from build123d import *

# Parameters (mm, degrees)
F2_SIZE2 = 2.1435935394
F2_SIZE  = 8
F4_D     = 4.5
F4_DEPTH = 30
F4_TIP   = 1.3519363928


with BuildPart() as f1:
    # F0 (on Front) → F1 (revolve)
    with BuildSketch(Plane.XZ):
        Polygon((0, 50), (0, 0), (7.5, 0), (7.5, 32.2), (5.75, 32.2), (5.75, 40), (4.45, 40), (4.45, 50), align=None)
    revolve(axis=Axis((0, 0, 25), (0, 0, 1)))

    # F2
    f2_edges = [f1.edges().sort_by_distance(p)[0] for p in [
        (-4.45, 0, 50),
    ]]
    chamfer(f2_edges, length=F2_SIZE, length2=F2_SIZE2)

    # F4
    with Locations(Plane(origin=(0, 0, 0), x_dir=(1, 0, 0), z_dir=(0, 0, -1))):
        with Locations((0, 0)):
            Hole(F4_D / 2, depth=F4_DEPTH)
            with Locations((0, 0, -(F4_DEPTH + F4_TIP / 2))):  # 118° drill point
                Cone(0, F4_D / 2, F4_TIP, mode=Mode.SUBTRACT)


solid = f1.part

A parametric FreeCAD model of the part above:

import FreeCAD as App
import Part
import Sketcher


def edges_at(feature, points):
    """Names of the edges that pass closest to the given points."""
    edges = feature.Shape.Edges
    near = lambda p: min(range(len(edges)), key=lambda i: edges[i].distToShape(Part.Vertex(*p))[0])
    return sorted({f"Edge{near(p) + 1}" for p in points})

doc = App.newDocument("Part")
body = doc.addObject("PartDesign::Body", "Body")

# Sketch on XZ plane
sketch1 = body.newObject("Sketcher::SketchObject", "Sketch")
sketch1.AttachmentSupport = (doc.getObject("XZ_Plane"), [""])
sketch1.MapMode = "FlatFace"
sketch1.addGeometry(Part.LineSegment(App.Vector(0, 50, 0), App.Vector(0, 0, 0)), False)
sketch1.addGeometry(Part.LineSegment(App.Vector(0, 0, 0), App.Vector(7.5, 0, 0)), False)
sketch1.addGeometry(Part.LineSegment(App.Vector(7.5, 0, 0), App.Vector(7.5, 32.2, 0)), False)
sketch1.addGeometry(Part.LineSegment(App.Vector(7.5, 32.2, 0), App.Vector(5.75, 32.2, 0)), False)
sketch1.addGeometry(Part.LineSegment(App.Vector(5.75, 32.2, 0), App.Vector(5.75, 40, 0)), False)
sketch1.addGeometry(Part.LineSegment(App.Vector(5.75, 40, 0), App.Vector(4.45, 40, 0)), False)
sketch1.addGeometry(Part.LineSegment(App.Vector(4.45, 40, 0), App.Vector(4.45, 50, 0)), False)
sketch1.addGeometry(Part.LineSegment(App.Vector(4.45, 50, 0), App.Vector(0, 50, 0)), False)
sketch1.addConstraint(Sketcher.Constraint("Coincident", 0, 2, 1, 1))
sketch1.addConstraint(Sketcher.Constraint("Coincident", 1, 2, 2, 1))
sketch1.addConstraint(Sketcher.Constraint("Coincident", 2, 2, 3, 1))
sketch1.addConstraint(Sketcher.Constraint("Coincident", 3, 2, 4, 1))
sketch1.addConstraint(Sketcher.Constraint("Coincident", 4, 2, 5, 1))
sketch1.addConstraint(Sketcher.Constraint("Coincident", 5, 2, 6, 1))
sketch1.addConstraint(Sketcher.Constraint("Coincident", 6, 2, 7, 1))
sketch1.addConstraint(Sketcher.Constraint("Coincident", 7, 2, 0, 1))
sketch1.addConstraint(Sketcher.Constraint("Vertical", 0))
sketch1.addConstraint(Sketcher.Constraint("Horizontal", 1))
sketch1.addConstraint(Sketcher.Constraint("Vertical", 2))
sketch1.addConstraint(Sketcher.Constraint("Horizontal", 3))
sketch1.addConstraint(Sketcher.Constraint("Vertical", 4))
sketch1.addConstraint(Sketcher.Constraint("Horizontal", 5))
sketch1.addConstraint(Sketcher.Constraint("Vertical", 6))
sketch1.addConstraint(Sketcher.Constraint("Horizontal", 7))
sketch1.addConstraint(Sketcher.Constraint("Coincident", 0, 2, -1, 1))
sketch1.addConstraint(Sketcher.Constraint("DistanceY", 0, 2, 0, 1, 50.0))
sketch1.addConstraint(Sketcher.Constraint("DistanceY", 6, 1, 6, 2, 10.0))
sketch1.addConstraint(Sketcher.Constraint("DistanceX", 1, 1, 1, 2, 7.5))
sketch1.addConstraint(Sketcher.Constraint("DistanceX", 5, 2, 5, 1, 1.3))
sketch1.addConstraint(Sketcher.Constraint("DistanceY", 2, 1, 2, 2, 32.2))
sketch1.addConstraint(Sketcher.Constraint("DistanceX", 3, 2, 3, 1, 1.75))
revolution = body.newObject("PartDesign::Revolution", "Revolution")
revolution.Profile = sketch1
revolution.ReferenceAxis = (sketch1, ["V_Axis"])
revolution.Angle = 360
doc.recompute()

chamfer = body.newObject("PartDesign::Chamfer", "Chamfer")
chamfer.Base = (revolution, edges_at(revolution, [(-4.45, 0, 50)]))
chamfer.ChamferType = "Two distances"
chamfer.Size = 8
chamfer.Size2 = 2.143594

# Sketch on XY plane
sketch2 = body.newObject("Sketcher::SketchObject", "Sketch001")
sketch2.AttachmentSupport = (doc.getObject("XY_Plane"), [""])
sketch2.MapMode = "FlatFace"
sketch2.addGeometry(Part.Circle(App.Vector(0, 0, 0), App.Vector(0, 0, 1), 2.25), False)
sketch2.addConstraint(Sketcher.Constraint("Coincident", 0, 3, -1, 1))
sketch2.addConstraint(Sketcher.Constraint("Diameter", 0, 4.5))
doc.recompute()
hole = body.newObject("PartDesign::Hole", "Hole")
hole.Profile = sketch2
hole.ThreadType = "None"
hole.Diameter = 4.5
hole.DepthType = "Dimension"
hole.Depth = 30
hole.DrillPoint = "Angled"
hole.DrillPointAngle = 118
hole.Reversed = True

doc.recompute()
